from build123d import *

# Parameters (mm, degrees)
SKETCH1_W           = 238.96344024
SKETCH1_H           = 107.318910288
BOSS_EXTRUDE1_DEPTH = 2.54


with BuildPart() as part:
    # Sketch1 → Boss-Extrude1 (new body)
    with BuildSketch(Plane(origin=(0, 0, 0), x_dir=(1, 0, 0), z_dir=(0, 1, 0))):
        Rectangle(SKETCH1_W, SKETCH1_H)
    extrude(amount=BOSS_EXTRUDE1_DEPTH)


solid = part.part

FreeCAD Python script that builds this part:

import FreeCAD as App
import Part
import Sketcher
Q = App.Units.Quantity

doc = App.newDocument("Part")
body = doc.addObject("PartDesign::Body", "Body")

# Sketch on XZ plane
sketch1 = body.newObject("Sketcher::SketchObject", "Sketch")
sketch1.AttachmentSupport = (doc.getObject("XZ_Plane"), [""])
sketch1.MapMode = "FlatFace"
sketch1.addGeometry(Part.LineSegment(App.Vector(-119.48172, -53.659455, 0), App.Vector(-119.48172, 53.659455, 0)), False)
sketch1.addGeometry(Part.LineSegment(App.Vector(-119.48172, 53.659455, 0), App.Vector(119.48172, 53.659455, 0)), False)
sketch1.addGeometry(Part.LineSegment(App.Vector(119.48172, 53.659455, 0), App.Vector(119.48172, -53.659455, 0)), False)
sketch1.addGeometry(Part.LineSegment(App.Vector(119.48172, -53.659455, 0), App.Vector(-119.48172, -53.659455, 0)), False)
sketch1.addConstraint(Sketcher.Constraint("Coincident", 0, 2, 1, 1))
sketch1.addConstraint(Sketcher.Constraint("Coincident", 1, 2, 2, 1))
sketch1.addConstraint(Sketcher.Constraint("Coincident", 2, 2, 3, 1))
sketch1.addConstraint(Sketcher.Constraint("Coincident", 3, 2, 0, 1))
sketch1.addConstraint(Sketcher.Constraint("Vertical", 0))
sketch1.addConstraint(Sketcher.Constraint("Horizontal", 1))
sketch1.addConstraint(Sketcher.Constraint("Vertical", 2))
sketch1.addConstraint(Sketcher.Constraint("Horizontal", 3))
sketch1.addConstraint(Sketcher.Constraint("Symmetric", 0, 2, 2, 2, -1, 1))
sketch1.addConstraint(Sketcher.Constraint("DistanceX", 1, 1, 1, 2, Q("238.96344 mm")))
sketch1.addConstraint(Sketcher.Constraint("DistanceY", 0, 1, 0, 2, Q("107.31891 mm")))
pad1 = body.newObject("PartDesign::Pad", "Pad")
pad1.Profile = sketch1
pad1.Length = Q("0.1 in")
pad1.Reversed = True

doc.recompute()
